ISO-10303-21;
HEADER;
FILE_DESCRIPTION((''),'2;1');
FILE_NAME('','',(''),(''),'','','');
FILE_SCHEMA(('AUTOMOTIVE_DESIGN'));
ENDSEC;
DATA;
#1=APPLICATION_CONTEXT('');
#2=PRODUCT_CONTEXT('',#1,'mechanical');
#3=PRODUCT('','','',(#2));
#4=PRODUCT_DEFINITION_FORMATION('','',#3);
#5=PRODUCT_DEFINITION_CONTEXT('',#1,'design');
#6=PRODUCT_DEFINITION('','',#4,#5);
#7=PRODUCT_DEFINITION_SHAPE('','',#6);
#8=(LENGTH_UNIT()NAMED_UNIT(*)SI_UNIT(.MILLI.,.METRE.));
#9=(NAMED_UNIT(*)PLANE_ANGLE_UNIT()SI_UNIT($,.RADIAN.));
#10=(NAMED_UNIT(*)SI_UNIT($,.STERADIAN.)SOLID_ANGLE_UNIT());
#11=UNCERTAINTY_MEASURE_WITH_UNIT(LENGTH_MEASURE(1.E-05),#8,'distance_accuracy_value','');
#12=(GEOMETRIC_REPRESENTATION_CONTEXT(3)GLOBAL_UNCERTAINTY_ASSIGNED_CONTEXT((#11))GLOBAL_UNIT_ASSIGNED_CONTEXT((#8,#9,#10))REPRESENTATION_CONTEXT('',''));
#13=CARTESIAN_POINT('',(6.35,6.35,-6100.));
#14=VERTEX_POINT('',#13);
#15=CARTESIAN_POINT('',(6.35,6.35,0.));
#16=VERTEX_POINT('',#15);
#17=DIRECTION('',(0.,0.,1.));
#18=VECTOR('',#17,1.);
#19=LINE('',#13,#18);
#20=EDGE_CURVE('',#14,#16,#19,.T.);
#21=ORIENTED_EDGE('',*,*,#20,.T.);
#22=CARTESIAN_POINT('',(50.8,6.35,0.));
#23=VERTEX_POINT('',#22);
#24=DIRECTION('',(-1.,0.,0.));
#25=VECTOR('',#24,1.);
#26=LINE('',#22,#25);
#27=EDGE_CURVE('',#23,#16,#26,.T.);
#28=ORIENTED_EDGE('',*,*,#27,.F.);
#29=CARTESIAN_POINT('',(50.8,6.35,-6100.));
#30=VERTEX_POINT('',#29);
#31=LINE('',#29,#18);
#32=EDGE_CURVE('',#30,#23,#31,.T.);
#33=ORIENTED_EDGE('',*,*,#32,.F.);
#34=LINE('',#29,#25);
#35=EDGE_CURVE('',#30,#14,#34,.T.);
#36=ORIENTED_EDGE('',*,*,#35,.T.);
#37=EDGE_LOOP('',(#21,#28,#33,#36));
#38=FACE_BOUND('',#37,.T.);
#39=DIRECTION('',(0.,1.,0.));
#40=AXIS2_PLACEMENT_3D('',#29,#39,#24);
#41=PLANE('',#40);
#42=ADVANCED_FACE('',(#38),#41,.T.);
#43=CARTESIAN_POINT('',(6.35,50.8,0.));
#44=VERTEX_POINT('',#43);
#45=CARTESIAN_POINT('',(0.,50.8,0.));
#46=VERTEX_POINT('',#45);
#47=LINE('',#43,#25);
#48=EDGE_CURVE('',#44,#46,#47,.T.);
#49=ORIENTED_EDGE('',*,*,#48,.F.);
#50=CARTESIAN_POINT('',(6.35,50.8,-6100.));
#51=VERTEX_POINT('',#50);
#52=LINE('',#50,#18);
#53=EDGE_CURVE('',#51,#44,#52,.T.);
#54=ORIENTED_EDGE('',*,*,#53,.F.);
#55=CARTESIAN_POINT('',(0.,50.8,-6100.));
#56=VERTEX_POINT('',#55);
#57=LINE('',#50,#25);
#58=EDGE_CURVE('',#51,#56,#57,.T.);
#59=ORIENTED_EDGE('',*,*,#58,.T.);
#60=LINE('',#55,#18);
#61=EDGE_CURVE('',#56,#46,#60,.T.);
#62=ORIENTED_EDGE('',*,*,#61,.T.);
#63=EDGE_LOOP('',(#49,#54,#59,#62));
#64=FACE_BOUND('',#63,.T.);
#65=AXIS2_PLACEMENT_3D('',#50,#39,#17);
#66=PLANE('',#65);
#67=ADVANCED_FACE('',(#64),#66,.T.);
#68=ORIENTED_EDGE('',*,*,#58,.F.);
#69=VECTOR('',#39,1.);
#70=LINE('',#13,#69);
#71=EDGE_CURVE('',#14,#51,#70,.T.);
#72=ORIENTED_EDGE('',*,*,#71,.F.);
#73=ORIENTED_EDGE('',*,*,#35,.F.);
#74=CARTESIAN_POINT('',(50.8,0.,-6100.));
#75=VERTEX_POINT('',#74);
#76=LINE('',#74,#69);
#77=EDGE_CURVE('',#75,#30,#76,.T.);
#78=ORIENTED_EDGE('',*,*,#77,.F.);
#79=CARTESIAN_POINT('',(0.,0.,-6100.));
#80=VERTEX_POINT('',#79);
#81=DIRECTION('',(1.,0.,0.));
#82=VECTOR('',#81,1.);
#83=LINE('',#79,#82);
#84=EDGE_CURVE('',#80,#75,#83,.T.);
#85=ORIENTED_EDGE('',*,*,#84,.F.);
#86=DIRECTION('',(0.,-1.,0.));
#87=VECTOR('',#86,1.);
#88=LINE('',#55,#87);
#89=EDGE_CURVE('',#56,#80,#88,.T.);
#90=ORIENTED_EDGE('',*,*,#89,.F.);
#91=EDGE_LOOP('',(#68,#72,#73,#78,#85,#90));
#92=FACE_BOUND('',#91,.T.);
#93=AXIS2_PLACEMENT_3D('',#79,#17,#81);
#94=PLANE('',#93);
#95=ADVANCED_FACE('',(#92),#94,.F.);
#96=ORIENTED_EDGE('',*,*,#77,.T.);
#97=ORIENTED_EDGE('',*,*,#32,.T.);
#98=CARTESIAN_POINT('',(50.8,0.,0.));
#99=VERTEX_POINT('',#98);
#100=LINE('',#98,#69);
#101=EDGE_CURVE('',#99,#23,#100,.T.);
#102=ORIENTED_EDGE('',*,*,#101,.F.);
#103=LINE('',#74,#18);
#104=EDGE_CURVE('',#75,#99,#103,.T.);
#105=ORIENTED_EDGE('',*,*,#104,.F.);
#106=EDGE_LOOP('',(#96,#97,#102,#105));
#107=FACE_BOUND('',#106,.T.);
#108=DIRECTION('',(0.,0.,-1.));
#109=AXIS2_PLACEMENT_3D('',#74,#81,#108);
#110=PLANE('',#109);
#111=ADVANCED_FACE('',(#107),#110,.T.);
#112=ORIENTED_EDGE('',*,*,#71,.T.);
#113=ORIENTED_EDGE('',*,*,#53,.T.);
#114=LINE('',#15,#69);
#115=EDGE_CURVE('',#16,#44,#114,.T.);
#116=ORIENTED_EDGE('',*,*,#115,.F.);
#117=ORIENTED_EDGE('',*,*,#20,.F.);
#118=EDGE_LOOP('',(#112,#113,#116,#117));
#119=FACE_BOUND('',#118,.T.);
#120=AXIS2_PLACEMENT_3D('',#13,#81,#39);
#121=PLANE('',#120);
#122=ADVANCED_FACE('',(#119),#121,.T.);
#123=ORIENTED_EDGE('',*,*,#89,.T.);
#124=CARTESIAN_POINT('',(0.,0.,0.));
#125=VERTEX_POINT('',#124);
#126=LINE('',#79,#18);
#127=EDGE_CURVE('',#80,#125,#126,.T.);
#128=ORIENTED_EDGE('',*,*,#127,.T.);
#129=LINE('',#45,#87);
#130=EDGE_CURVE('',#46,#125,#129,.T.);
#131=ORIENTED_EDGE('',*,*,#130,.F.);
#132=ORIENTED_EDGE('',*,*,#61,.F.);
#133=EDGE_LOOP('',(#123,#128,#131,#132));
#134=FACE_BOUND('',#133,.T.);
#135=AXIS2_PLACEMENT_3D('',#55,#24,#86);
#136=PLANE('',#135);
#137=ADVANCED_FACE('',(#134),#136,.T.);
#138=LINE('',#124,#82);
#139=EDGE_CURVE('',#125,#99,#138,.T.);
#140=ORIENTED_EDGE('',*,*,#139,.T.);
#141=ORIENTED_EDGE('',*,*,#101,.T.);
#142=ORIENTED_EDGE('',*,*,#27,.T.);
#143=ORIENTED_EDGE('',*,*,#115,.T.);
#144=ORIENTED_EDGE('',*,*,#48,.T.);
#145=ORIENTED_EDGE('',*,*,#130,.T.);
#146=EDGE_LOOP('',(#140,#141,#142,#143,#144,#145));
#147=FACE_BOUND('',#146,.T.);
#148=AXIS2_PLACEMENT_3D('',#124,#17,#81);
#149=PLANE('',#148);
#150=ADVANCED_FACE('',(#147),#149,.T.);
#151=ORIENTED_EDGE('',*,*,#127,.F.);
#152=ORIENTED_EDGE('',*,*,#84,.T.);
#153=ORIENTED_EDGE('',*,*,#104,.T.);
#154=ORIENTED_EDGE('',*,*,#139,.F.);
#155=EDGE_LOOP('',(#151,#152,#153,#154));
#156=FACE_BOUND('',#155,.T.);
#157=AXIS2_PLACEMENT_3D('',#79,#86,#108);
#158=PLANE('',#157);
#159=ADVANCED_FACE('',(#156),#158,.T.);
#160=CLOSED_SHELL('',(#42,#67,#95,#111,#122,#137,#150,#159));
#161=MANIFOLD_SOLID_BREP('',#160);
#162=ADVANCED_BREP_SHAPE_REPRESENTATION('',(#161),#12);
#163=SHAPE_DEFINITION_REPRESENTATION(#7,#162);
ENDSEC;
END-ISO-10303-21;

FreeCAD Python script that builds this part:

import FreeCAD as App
import Part
import Sketcher
from FreeCAD import Vector
Q = App.Units.Quantity

doc = App.newDocument("Part")
body = doc.addObject("PartDesign::Body", "Body")

# Sketch on XY plane
sketch1 = body.newObject("Sketcher::SketchObject", "Sketch")
sketch1.AttachmentSupport = (doc.getObject("XY_Plane"), [""])
sketch1.MapMode = "FlatFace"
sketch1.addGeometry([
    Part.LineSegment(Vector(0, 51, 0), Vector(0, 0, 0)),  # 0
    Part.LineSegment(Vector(0, 0, 0), Vector(51, 0, 0)),  # 1
    Part.LineSegment(Vector(51, 0, 0), Vector(51, 6, 0)),  # 2
    Part.LineSegment(Vector(51, 6, 0), Vector(6, 6, 0)),  # 3
    Part.LineSegment(Vector(6, 6, 0), Vector(6, 51, 0)),  # 4
    Part.LineSegment(Vector(6, 51, 0), Vector(0, 51, 0)),  # 5
], False)
sketch1.addConstraint([
    Sketcher.Constraint("Coincident", 0, 2, 1, 1),
    Sketcher.Constraint("Coincident", 1, 2, 2, 1),
    Sketcher.Constraint("Coincident", 2, 2, 3, 1),
    Sketcher.Constraint("Coincident", 3, 2, 4, 1),
    Sketcher.Constraint("Coincident", 4, 2, 5, 1),
    Sketcher.Constraint("Coincident", 5, 2, 0, 1),
    Sketcher.Constraint("Vertical", 0),
    Sketcher.Constraint("Horizontal", 1),
    Sketcher.Constraint("Vertical", 2),
    Sketcher.Constraint("Horizontal", 3),
    Sketcher.Constraint("Vertical", 4),
    Sketcher.Constraint("Horizontal", 5),
    Sketcher.Constraint("Coincident", 0, 2, -1, 1),
    Sketcher.Constraint("Equal", 1, 0),
    Sketcher.Constraint("Equal", 5, 2),
    Sketcher.Constraint("DistanceX", 1, 1, 1, 2, Q("2 in")),
    Sketcher.Constraint("DistanceX", 3, 2, 3, 1, Q("1.75 in")),
])
pad1 = body.newObject("PartDesign::Pad", "Pad")
pad1.Profile = sketch1
pad1.Length = 6100
pad1.Reversed = True

doc.recompute()
